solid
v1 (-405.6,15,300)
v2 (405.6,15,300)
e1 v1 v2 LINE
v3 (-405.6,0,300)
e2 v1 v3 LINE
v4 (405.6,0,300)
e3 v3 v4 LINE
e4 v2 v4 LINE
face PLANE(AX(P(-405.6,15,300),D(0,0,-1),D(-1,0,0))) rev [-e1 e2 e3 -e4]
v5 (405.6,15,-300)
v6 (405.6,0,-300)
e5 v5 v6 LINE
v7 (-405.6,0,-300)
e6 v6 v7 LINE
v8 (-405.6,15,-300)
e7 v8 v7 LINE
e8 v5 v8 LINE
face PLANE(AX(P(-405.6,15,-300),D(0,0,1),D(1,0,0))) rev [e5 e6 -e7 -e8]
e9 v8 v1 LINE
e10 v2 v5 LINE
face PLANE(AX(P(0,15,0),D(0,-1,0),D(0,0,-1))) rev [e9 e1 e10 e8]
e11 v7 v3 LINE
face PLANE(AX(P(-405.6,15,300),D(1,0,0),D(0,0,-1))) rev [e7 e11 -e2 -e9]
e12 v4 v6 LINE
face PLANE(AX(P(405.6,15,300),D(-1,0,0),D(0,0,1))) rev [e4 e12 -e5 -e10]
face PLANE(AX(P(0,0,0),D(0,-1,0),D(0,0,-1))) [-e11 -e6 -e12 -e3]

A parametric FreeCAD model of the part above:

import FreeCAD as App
import Part
import Sketcher

V = App.Vector
Q = App.Units.Quantity


def add_polygon(sketch, points):
    """Adds a closed chain of lines whose ends are joined by coincident constraints."""
    first, n = sketch.GeometryCount, len(points)
    for a, b in zip(points, points[1:] + points[:1]):
        sketch.addGeometry(Part.LineSegment(App.Vector(*a, 0), App.Vector(*b, 0)), False)
    for i in range(n):
        sketch.addConstraint(Sketcher.Constraint("Coincident", first + i, 2, first + (i + 1) % n, 1))

doc = App.newDocument("Part")
body = doc.addObject("PartDesign::Body", "Body")

# Sketch on XZ plane
sketch1 = doc.addObject("Sketcher::SketchObject", "Sketch")
body.addObject(sketch1)
sketch1.AttachmentSupport = (doc.XZ_Plane, [""])
sketch1.MapMode = "FlatFace"
add_polygon(sketch1, [(-405.6, -300), (-405.6, 300), (405.6, 300), (405.6, -300)])  # lines 0-3
sketch1.addConstraint(Sketcher.Constraint("Vertical", 0))
sketch1.addConstraint(Sketcher.Constraint("Horizontal", 1))
sketch1.addConstraint(Sketcher.Constraint("Vertical", 2))
sketch1.addConstraint(Sketcher.Constraint("Horizontal", 3))
sketch1.addConstraint(Sketcher.Constraint("Symmetric", 0, 2, 2, 2, -1, 1))
sketch1.addConstraint(Sketcher.Constraint("DistanceY", 0, 1, 0, 2, Q("600 mm")))
sketch1.addConstraint(Sketcher.Constraint("DistanceX", 1, 1, 1, 2, Q("811.2 mm")))
pad1 = doc.addObject("PartDesign::Pad", "Pad")
body.addObject(pad1)
pad1.Profile = sketch1
pad1.Length = 15
pad1.Reversed = True

doc.recompute()
